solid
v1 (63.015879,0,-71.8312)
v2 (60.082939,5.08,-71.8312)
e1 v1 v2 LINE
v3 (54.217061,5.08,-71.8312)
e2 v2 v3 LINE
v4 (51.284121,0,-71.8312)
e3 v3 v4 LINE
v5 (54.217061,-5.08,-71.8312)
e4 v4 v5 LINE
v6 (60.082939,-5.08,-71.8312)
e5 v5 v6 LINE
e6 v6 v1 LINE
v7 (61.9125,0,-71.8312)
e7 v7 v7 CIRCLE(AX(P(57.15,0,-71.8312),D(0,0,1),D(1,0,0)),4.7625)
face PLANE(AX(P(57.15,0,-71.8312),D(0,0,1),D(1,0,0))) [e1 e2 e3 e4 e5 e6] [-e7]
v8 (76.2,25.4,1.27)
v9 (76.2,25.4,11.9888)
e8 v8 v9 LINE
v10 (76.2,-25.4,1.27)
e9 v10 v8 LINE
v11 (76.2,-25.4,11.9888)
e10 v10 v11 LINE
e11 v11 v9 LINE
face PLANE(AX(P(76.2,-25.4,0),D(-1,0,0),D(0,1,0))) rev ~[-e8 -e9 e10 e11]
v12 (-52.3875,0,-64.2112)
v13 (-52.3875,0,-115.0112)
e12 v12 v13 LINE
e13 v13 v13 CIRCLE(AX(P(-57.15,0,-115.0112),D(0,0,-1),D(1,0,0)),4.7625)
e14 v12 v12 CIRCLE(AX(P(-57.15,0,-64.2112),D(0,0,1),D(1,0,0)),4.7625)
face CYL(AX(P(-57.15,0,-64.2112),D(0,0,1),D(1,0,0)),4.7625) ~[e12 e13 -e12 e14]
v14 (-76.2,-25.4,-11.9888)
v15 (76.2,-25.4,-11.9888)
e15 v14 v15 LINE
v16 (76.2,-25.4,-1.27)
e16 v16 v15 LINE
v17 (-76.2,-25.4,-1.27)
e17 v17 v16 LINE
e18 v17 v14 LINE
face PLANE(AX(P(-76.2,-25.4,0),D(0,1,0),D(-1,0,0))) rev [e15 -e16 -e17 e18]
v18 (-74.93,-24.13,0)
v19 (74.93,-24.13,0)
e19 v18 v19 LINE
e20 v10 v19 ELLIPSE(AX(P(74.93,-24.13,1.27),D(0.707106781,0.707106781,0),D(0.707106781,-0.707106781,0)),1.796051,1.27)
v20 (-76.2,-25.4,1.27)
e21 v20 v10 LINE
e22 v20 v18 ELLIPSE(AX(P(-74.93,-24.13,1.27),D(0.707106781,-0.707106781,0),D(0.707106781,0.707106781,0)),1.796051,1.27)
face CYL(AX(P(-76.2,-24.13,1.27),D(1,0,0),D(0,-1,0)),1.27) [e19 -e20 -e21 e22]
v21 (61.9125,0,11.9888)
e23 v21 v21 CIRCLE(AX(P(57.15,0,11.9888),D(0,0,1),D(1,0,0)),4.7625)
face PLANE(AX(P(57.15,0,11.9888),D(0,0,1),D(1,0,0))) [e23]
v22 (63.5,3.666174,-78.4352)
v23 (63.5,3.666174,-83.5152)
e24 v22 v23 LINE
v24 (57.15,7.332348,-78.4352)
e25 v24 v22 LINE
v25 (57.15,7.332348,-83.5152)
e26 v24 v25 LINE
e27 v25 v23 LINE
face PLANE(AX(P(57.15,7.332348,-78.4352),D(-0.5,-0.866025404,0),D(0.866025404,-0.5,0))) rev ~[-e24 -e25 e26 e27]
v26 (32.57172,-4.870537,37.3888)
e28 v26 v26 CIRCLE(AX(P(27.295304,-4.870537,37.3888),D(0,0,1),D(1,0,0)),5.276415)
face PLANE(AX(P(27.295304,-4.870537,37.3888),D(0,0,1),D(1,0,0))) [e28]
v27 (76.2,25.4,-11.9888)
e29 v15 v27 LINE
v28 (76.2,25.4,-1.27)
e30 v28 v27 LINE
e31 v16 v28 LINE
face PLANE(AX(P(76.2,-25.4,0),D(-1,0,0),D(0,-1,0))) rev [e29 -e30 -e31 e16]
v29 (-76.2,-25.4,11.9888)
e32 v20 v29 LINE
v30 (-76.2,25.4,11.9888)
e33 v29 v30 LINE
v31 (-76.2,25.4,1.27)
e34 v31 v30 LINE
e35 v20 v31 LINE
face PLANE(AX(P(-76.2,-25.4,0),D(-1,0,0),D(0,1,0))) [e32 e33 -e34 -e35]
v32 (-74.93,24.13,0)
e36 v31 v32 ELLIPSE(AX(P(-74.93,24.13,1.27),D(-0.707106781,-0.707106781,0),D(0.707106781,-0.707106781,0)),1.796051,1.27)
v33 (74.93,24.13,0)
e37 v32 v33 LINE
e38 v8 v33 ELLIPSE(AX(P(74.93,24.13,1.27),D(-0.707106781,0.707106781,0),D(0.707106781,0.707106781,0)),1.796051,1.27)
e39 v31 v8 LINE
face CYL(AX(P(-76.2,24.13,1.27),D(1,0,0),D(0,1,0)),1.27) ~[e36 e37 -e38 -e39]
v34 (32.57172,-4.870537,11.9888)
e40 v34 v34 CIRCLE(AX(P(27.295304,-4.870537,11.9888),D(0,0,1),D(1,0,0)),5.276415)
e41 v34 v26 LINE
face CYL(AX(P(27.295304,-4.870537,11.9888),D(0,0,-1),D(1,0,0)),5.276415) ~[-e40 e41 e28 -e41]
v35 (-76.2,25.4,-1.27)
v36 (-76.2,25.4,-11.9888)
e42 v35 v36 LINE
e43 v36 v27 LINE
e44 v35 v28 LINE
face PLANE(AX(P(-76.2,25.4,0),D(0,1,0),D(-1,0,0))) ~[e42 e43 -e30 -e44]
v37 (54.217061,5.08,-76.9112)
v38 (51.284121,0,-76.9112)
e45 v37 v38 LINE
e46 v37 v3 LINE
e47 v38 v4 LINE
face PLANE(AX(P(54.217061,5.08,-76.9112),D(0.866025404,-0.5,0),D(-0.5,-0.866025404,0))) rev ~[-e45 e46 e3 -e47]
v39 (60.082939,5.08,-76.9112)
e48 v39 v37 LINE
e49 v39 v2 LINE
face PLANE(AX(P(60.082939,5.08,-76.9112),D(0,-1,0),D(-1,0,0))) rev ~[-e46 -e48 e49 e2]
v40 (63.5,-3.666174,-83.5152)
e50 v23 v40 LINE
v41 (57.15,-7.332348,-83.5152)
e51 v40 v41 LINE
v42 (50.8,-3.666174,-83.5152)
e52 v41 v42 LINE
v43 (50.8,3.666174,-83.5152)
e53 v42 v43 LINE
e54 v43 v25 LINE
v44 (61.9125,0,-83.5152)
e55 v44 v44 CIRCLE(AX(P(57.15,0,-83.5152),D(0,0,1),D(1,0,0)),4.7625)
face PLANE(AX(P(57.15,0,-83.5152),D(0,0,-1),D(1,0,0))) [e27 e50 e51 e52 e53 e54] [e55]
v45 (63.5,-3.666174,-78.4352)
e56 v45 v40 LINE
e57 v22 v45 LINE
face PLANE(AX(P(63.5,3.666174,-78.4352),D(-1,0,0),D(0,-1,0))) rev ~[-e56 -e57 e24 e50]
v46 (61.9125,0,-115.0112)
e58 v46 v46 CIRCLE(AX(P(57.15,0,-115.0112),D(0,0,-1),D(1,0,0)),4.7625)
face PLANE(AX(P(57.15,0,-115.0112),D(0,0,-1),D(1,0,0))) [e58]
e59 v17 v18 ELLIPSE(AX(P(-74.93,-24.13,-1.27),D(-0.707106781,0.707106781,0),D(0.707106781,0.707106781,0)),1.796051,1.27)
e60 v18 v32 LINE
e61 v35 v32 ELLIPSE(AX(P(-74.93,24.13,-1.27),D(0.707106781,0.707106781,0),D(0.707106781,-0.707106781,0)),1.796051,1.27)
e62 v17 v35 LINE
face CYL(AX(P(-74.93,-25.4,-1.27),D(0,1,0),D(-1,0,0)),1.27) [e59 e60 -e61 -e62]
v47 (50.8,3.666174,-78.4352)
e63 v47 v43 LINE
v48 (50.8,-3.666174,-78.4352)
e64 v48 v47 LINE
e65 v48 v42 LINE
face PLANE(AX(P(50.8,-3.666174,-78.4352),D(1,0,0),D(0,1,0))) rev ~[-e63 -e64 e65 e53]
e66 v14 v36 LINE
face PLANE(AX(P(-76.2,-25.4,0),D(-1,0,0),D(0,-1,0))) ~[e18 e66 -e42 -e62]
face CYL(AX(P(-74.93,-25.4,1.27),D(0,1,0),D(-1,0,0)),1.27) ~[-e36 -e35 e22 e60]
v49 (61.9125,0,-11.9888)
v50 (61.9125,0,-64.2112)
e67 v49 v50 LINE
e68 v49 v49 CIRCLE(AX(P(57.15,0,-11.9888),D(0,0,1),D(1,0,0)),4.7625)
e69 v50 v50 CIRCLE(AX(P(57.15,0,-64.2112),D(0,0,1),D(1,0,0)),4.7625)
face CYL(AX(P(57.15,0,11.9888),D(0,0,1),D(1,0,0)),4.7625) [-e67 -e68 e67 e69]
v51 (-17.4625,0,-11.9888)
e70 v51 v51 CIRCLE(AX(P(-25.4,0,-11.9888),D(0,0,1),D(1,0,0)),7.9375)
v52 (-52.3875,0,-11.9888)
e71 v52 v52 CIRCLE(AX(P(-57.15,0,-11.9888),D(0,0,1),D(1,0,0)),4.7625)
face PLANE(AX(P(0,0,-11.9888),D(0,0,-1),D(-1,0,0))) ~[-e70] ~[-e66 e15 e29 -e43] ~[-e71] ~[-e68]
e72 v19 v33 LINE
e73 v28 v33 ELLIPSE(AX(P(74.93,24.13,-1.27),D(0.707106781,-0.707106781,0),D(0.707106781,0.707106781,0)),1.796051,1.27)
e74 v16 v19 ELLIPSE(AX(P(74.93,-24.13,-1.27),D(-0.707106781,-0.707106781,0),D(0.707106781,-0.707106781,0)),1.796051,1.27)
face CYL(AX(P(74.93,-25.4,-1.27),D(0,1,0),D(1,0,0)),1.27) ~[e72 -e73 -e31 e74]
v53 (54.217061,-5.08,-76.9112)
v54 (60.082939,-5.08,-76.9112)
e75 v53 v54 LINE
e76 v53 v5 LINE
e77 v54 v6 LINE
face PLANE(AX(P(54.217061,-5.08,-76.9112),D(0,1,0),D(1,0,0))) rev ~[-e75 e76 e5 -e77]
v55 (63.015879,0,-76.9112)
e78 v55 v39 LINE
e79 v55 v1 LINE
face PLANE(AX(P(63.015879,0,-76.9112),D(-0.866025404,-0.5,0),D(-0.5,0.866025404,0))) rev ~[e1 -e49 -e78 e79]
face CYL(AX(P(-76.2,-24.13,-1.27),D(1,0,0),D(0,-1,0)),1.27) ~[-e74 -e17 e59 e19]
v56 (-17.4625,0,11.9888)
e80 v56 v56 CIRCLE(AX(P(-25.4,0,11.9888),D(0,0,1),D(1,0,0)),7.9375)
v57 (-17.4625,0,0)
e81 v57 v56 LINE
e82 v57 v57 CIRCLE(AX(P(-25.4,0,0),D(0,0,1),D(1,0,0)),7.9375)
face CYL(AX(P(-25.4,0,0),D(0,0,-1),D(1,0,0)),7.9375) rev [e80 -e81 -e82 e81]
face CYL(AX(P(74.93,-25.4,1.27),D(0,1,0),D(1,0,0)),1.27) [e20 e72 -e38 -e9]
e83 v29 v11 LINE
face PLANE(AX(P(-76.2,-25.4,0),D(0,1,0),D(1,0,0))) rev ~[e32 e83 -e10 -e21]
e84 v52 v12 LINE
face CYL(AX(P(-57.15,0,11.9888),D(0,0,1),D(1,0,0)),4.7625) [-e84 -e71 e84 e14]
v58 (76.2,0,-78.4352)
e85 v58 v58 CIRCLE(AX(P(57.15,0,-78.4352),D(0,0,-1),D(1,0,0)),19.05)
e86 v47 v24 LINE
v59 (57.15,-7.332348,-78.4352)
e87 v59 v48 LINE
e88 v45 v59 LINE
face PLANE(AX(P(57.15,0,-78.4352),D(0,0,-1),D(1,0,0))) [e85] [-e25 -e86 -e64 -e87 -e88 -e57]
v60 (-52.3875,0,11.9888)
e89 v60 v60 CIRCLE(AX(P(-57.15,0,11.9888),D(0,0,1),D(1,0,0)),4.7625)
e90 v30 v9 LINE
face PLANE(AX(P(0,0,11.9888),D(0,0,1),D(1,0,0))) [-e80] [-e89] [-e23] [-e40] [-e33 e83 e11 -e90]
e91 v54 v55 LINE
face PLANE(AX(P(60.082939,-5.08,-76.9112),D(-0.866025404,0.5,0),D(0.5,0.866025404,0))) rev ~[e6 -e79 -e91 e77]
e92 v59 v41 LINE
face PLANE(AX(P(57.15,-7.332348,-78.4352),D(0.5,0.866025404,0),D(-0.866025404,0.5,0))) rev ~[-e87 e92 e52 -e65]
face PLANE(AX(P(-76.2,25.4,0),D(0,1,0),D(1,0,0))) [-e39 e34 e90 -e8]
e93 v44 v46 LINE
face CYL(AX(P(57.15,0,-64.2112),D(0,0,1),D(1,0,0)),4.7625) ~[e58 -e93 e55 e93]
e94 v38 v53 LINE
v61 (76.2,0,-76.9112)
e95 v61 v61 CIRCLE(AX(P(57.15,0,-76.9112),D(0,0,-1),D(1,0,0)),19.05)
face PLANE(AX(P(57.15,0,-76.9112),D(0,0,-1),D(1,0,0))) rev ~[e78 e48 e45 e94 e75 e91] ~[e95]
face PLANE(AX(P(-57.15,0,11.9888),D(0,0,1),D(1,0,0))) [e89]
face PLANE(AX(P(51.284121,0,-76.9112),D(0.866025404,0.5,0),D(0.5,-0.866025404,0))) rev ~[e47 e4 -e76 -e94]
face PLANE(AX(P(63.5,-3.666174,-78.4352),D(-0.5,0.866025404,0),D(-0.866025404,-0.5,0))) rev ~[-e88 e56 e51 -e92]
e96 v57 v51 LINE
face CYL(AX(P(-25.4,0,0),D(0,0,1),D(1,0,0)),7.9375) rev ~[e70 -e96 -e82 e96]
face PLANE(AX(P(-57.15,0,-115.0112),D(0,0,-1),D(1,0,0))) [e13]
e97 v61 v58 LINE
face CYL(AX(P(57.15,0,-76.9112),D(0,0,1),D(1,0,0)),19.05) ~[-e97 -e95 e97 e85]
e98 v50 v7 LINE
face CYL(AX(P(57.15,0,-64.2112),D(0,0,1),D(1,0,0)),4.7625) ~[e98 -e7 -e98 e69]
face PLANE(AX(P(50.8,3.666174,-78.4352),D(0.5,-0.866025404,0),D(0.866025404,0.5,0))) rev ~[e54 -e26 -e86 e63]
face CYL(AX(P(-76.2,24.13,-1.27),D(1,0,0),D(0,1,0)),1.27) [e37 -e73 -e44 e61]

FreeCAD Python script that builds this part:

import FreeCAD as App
import Part
import Sketcher
Q = App.Units.Quantity


def edges_at(feature, points):
    """Names of the edges that pass closest to the given points."""
    edges = feature.Shape.Edges
    near = lambda p: min(range(len(edges)), key=lambda i: edges[i].distToShape(Part.Vertex(*p))[0])
    return sorted({f"Edge{near(p) + 1}" for p in points})

doc = App.newDocument("Part")
body = doc.addObject("PartDesign::Body", "Body")

sketch1 = doc.addObject("Sketcher::SketchObject", "Sketch")
body.addObject(sketch1)
sketch1.AttachmentSupport = (doc.XY_Plane, [""])
sketch1.MapMode = "FlatFace"
sketch1.addGeometry(Part.LineSegment(App.Vector(-76.2, 25.4, 0), App.Vector(-76.2, -25.4, 0)), False)
sketch1.addGeometry(Part.LineSegment(App.Vector(-76.2, -25.4, 0), App.Vector(76.2, -25.4, 0)), False)
sketch1.addGeometry(Part.LineSegment(App.Vector(76.2, -25.4, 0), App.Vector(76.2, 25.4, 0)), False)
sketch1.addGeometry(Part.LineSegment(App.Vector(76.2, 25.4, 0), App.Vector(-76.2, 25.4, 0)), False)
sketch1.addGeometry(Part.Circle(App.Vector(-57.1, 0, 0), App.Vector(0, 0, 1), 4.8), False)
sketch1.addGeometry(Part.Circle(App.Vector(-25.4, 0, 0), App.Vector(0, 0, 1), 7.9), False)
sketch1.addGeometry(Part.Circle(App.Vector(57.1, 0, 0), App.Vector(0, 0, 1), 4.8), False)
sketch1.addConstraint(Sketcher.Constraint("Coincident", 0, 2, 1, 1))
sketch1.addConstraint(Sketcher.Constraint("Coincident", 1, 2, 2, 1))
sketch1.addConstraint(Sketcher.Constraint("Coincident", 2, 2, 3, 1))
sketch1.addConstraint(Sketcher.Constraint("Coincident", 3, 2, 0, 1))
sketch1.addConstraint(Sketcher.Constraint("Vertical", 0))
sketch1.addConstraint(Sketcher.Constraint("Horizontal", 1))
sketch1.addConstraint(Sketcher.Constraint("Vertical", 2))
sketch1.addConstraint(Sketcher.Constraint("Horizontal", 3))
sketch1.addConstraint(Sketcher.Constraint("Equal", 4, 6))
sketch1.addConstraint(Sketcher.Constraint("Symmetric", 4, 3, 6, 3, -1, 1))
sketch1.addConstraint(Sketcher.Constraint("Symmetric", 0, 2, 2, 2, -1, 1))
sketch1.addConstraint(Sketcher.Constraint("PointOnObject", 4, 3, -1))
sketch1.addConstraint(Sketcher.Constraint("PointOnObject", 5, 3, -1))
sketch1.addConstraint(Sketcher.Constraint("DistanceX", 1, 1, 1, 2, Q("6 in")))
sketch1.addConstraint(Sketcher.Constraint("DistanceY", 0, 2, 0, 1, Q("2 in")))
sketch1.addConstraint(Sketcher.Constraint("Diameter", 4, Q("0.375 in")))
sketch1.addConstraint(Sketcher.Constraint("Diameter", 5, Q("0.625 in")))
sketch1.addConstraint(Sketcher.Constraint("DistanceX", 5, 3, -1, 1, Q("1 in")))
sketch1.addConstraint(Sketcher.Constraint("DistanceX", 4, 3, 6, 3, Q("4.5 in")))
pad1 = doc.addObject("PartDesign::Pad", "Pad")
body.addObject(pad1)
pad1.Profile = sketch1
pad1.Length = Q("0.472 in")
doc.recompute()

fillet = doc.addObject("PartDesign::Fillet", "Fillet")
body.addObject(fillet)
fillet.Base = (pad1, edges_at(pad1, [
    (0, 25.4, 0),
    (-76.2, 0, 0),
    (0, -25.4, 0),
    (76.2, 0, 0),
]))
fillet.Radius = Q("0.05 in")
body2 = doc.addObject("PartDesign::Body", "Body001")
doc.recompute()

body2.BaseFeature = body
doc.recompute()

mirroring = doc.addObject("Part::Mirroring", "Mirroring")
mirroring.Source = body
mirroring.Base = App.Vector(0, 0, 0)
mirroring.Normal = App.Vector(0, 0, 1)
body3 = doc.addObject("PartDesign::Body", "Body002")
body3.BaseFeature = mirroring
boolean = doc.addObject("PartDesign::Boolean", "Boolean")
body2.addObject(boolean)
boolean.Type = "Fuse"
boolean.addObjects([body3])
doc.recompute()

sketch2 = doc.addObject("Sketcher::SketchObject", "Sketch001")
body2.addObject(sketch2)
sketch2.AttachmentSupport = (doc.getObject("XY_Plane001"), [""])
sketch2.MapMode = "FlatFace"
sketch2.AttachmentOffset = App.Placement(App.Vector(0, 0, 0.472 * 25.4), App.Rotation())
sketch2.addGeometry(Part.Circle(App.Vector(-57.1, 0, 0), App.Vector(0, 0, 1), 4.8), False)
sketch2.addGeometry(Part.Circle(App.Vector(57.1, 0, 0), App.Vector(0, 0, 1), 4.8), False)
sketch2.addConstraint(Sketcher.Constraint("Equal", 0, 1))
sketch2.addConstraint(Sketcher.Constraint("Symmetric", 0, 3, 1, 3, -1, 1))
sketch2.addConstraint(Sketcher.Constraint("PointOnObject", 0, 3, -1))
sketch2.addConstraint(Sketcher.Constraint("Diameter", 0, Q("0.375 in")))
sketch2.addConstraint(Sketcher.Constraint("DistanceX", 0, 3, 1, 3, Q("4.5 in")))
pad2 = doc.addObject("PartDesign::Pad", "Pad001")
body2.addObject(pad2)
pad2.Profile = sketch2
pad2.Length = Q("3 in")
pad2.Reversed = True

sketch3 = doc.addObject("Sketcher::SketchObject", "Sketch002")
body2.addObject(sketch3)
sketch3.AttachmentSupport = (doc.getObject("XY_Plane001"), [""])
sketch3.MapMode = "FlatFace"
sketch3.AttachmentOffset = App.Placement(App.Vector(0, 0, -2.528 * 25.4), App.Rotation())
sketch3.addGeometry(Part.Circle(App.Vector(57.1, 0, 0), App.Vector(0, 0, 1), 4.8), False)
sketch3.addGeometry(Part.Circle(App.Vector(-57.1, 0, 0), App.Vector(0, 0, 1), 4.8), False)
sketch3.addConstraint(Sketcher.Constraint("Equal", 0, 1))
sketch3.addConstraint(Sketcher.Constraint("Symmetric", 0, 3, 1, 3, -1, 1))
sketch3.addConstraint(Sketcher.Constraint("PointOnObject", 0, 3, -1))
sketch3.addConstraint(Sketcher.Constraint("Diameter", 0, Q("0.375 in")))
sketch3.addConstraint(Sketcher.Constraint("DistanceX", 1, 3, 0, 3, Q("4.5 in")))
pad3 = doc.addObject("PartDesign::Pad", "Pad002")
body2.addObject(pad3)
pad3.Profile = sketch3
pad3.Length = Q("2 in")
pad3.Reversed = True

sketch4 = doc.addObject("Sketcher::SketchObject", "Sketch003")
body2.addObject(sketch4)
sketch4.AttachmentSupport = (doc.getObject("XY_Plane001"), [""])
sketch4.MapMode = "FlatFace"
sketch4.AttachmentOffset = App.Placement(App.Vector(0, 0, -3.028 * 25.4), App.Rotation())
sketch4.addGeometry(Part.Circle(App.Vector(57, 0, 0), App.Vector(0, 0, 1), 19), False)
sketch4.addConstraint(Sketcher.Constraint("PointOnObject", 0, 3, -1))
sketch4.addConstraint(Sketcher.Constraint("Diameter", 0, Q("1.5 in")))
sketch4.addConstraint(Sketcher.Constraint("DistanceX", -1, 1, 0, 3, Q("2.25 in")))
pad4 = doc.addObject("PartDesign::Pad", "Pad003")
body2.addObject(pad4)
pad4.Profile = sketch4
pad4.Length = Q("0.06 in")
pad4.Reversed = True

sketch5 = doc.addObject("Sketcher::SketchObject", "Sketch004")
body2.addObject(sketch5)
sketch5.AttachmentSupport = (doc.getObject("XY_Plane001"), [""])
sketch5.MapMode = "FlatFace"
sketch5.AttachmentOffset = App.Placement(App.Vector(0, 0, -3.088 * 25.4), App.Rotation())
sketch5.addGeometry(Part.LineSegment(App.Vector(64, -4, 0), App.Vector(57, -7, 0)), False)
sketch5.addGeometry(Part.LineSegment(App.Vector(57, -7, 0), App.Vector(51, -4, 0)), False)
sketch5.addGeometry(Part.LineSegment(App.Vector(51, -4, 0), App.Vector(51, 4, 0)), False)
sketch5.addGeometry(Part.LineSegment(App.Vector(51, 4, 0), App.Vector(57, 7, 0)), False)
sketch5.addGeometry(Part.LineSegment(App.Vector(57, 7, 0), App.Vector(64, 4, 0)), False)
sketch5.addGeometry(Part.LineSegment(App.Vector(64, 4, 0), App.Vector(64, -4, 0)), False)
sketch5.addConstraint(Sketcher.Constraint("Coincident", 0, 2, 1, 1))
sketch5.addConstraint(Sketcher.Constraint("Coincident", 1, 2, 2, 1))
sketch5.addConstraint(Sketcher.Constraint("Coincident", 2, 2, 3, 1))
sketch5.addConstraint(Sketcher.Constraint("Coincident", 3, 2, 4, 1))
sketch5.addConstraint(Sketcher.Constraint("Coincident", 4, 2, 5, 1))
sketch5.addConstraint(Sketcher.Constraint("Coincident", 5, 2, 0, 1))
sketch5.addConstraint(Sketcher.Constraint("Vertical", 2))
sketch5.addConstraint(Sketcher.Constraint("Vertical", 5))
sketch5.addConstraint(Sketcher.Constraint("Symmetric", 0, 2, 3, 2, -1))
sketch5.addConstraint(Sketcher.Constraint("Parallel", 0, 3))
sketch5.addConstraint(Sketcher.Constraint("Parallel", 1, 4))
sketch5.addConstraint(Sketcher.Constraint("Horizontal", 2, 2, 4, 2))
sketch5.addConstraint(Sketcher.Constraint("Horizontal", 1, 2, 5, 2))
sketch5.addConstraint(Sketcher.Constraint("DistanceX", -1, 1, 1, 2, Q("2 in")))
sketch5.addConstraint(Sketcher.Constraint("Angle", 0, Q("-150 deg")))
sketch5.addConstraint(Sketcher.Constraint("DistanceX", -1, 1, 4, 2, Q("2.5 in")))
sketch5.addConstraint(Sketcher.Constraint("DistanceY", 2, 1, 2, 2, Q("7.332348 mm")))
pad5 = doc.addObject("PartDesign::Pad", "Pad004")
body2.addObject(pad5)
pad5.Profile = sketch5
pad5.Length = Q("0.2 in")
pad5.Reversed = True

sketch6 = doc.addObject("Sketcher::SketchObject", "Sketch005")
body2.addObject(sketch6)
sketch6.AttachmentSupport = (doc.getObject("XY_Plane001"), [""])
sketch6.MapMode = "FlatFace"
sketch6.AttachmentOffset = App.Placement(App.Vector(0, 0, -3.028 * 25.4), App.Rotation())
sketch6.addGeometry(Part.LineSegment(App.Vector(60, -5, 0), App.Vector(63, 0, 0)), False)
sketch6.addGeometry(Part.LineSegment(App.Vector(63, 0, 0), App.Vector(60, 5, 0)), False)
sketch6.addGeometry(Part.LineSegment(App.Vector(60, 5, 0), App.Vector(54, 5, 0)), False)
sketch6.addGeometry(Part.LineSegment(App.Vector(54, 5, 0), App.Vector(51, 0, 0)), False)
sketch6.addGeometry(Part.LineSegment(App.Vector(51, 0, 0), App.Vector(54, -5, 0)), False)
sketch6.addGeometry(Part.LineSegment(App.Vector(54, -5, 0), App.Vector(60, -5, 0)), False)
sketch6.addConstraint(Sketcher.Constraint("Coincident", 0, 2, 1, 1))
sketch6.addConstraint(Sketcher.Constraint("Coincident", 1, 2, 2, 1))
sketch6.addConstraint(Sketcher.Constraint("Coincident", 2, 2, 3, 1))
sketch6.addConstraint(Sketcher.Constraint("Coincident", 3, 2, 4, 1))
sketch6.addConstraint(Sketcher.Constraint("Coincident", 4, 2, 5, 1))
sketch6.addConstraint(Sketcher.Constraint("Coincident", 5, 2, 0, 1))
sketch6.addConstraint(Sketcher.Constraint("Horizontal", 2))
sketch6.addConstraint(Sketcher.Constraint("Horizontal", 5))
sketch6.addConstraint(Sketcher.Constraint("Symmetric", 2, 2, 4, 2, -1))
sketch6.addConstraint(Sketcher.Constraint("PointOnObject", 0, 2, -1))
sketch6.addConstraint(Sketcher.Constraint("PointOnObject", 3, 2, -1))
sketch6.addConstraint(Sketcher.Constraint("Parallel", 0, 3))
sketch6.addConstraint(Sketcher.Constraint("Parallel", 1, 4))
sketch6.addConstraint(Sketcher.Constraint("Angle", 0, Q("60 deg")))
sketch6.addConstraint(Sketcher.Constraint("DistanceY", -1, 1, 1, 2, Q("0.2 in")))
sketch6.addConstraint(Sketcher.Constraint("DistanceX", 2, 2, 2, 1, Q("5.865879 mm")))
sketch6.addConstraint(Sketcher.Constraint("DistanceX", -1, 1, 0, 2, Q("63.015879 mm")))
pad6 = doc.addObject("PartDesign::Pad", "Pad005")
body2.addObject(pad6)
pad6.Profile = sketch6
pad6.Length = Q("0.2 in")

sketch7 = doc.addObject("Sketcher::SketchObject", "Sketch006")
body2.addObject(sketch7)
sketch7.AttachmentSupport = (doc.getObject("XY_Plane001"), [""])
sketch7.MapMode = "FlatFace"
sketch7.AttachmentOffset = App.Placement(App.Vector(0, 0, 0.472 * 25.4), App.Rotation())
sketch7.addGeometry(Part.Circle(App.Vector(27, -5, 0), App.Vector(0, 0, 1), 5), False)
sketch7.addConstraint(Sketcher.Constraint("Diameter", 0, Q("10.55283 mm")))
sketch7.addConstraint(Sketcher.Constraint("DistanceX", -1, 1, 0, 3, Q("27.295304 mm")))
sketch7.addConstraint(Sketcher.Constraint("DistanceY", 0, 3, -1, 1, Q("4.870537 mm")))
pad7 = doc.addObject("PartDesign::Pad", "Pad006")
body2.addObject(pad7)
pad7.Profile = sketch7
pad7.Length = Q("1 in")
mirroring.Visibility = False

doc.recompute()
